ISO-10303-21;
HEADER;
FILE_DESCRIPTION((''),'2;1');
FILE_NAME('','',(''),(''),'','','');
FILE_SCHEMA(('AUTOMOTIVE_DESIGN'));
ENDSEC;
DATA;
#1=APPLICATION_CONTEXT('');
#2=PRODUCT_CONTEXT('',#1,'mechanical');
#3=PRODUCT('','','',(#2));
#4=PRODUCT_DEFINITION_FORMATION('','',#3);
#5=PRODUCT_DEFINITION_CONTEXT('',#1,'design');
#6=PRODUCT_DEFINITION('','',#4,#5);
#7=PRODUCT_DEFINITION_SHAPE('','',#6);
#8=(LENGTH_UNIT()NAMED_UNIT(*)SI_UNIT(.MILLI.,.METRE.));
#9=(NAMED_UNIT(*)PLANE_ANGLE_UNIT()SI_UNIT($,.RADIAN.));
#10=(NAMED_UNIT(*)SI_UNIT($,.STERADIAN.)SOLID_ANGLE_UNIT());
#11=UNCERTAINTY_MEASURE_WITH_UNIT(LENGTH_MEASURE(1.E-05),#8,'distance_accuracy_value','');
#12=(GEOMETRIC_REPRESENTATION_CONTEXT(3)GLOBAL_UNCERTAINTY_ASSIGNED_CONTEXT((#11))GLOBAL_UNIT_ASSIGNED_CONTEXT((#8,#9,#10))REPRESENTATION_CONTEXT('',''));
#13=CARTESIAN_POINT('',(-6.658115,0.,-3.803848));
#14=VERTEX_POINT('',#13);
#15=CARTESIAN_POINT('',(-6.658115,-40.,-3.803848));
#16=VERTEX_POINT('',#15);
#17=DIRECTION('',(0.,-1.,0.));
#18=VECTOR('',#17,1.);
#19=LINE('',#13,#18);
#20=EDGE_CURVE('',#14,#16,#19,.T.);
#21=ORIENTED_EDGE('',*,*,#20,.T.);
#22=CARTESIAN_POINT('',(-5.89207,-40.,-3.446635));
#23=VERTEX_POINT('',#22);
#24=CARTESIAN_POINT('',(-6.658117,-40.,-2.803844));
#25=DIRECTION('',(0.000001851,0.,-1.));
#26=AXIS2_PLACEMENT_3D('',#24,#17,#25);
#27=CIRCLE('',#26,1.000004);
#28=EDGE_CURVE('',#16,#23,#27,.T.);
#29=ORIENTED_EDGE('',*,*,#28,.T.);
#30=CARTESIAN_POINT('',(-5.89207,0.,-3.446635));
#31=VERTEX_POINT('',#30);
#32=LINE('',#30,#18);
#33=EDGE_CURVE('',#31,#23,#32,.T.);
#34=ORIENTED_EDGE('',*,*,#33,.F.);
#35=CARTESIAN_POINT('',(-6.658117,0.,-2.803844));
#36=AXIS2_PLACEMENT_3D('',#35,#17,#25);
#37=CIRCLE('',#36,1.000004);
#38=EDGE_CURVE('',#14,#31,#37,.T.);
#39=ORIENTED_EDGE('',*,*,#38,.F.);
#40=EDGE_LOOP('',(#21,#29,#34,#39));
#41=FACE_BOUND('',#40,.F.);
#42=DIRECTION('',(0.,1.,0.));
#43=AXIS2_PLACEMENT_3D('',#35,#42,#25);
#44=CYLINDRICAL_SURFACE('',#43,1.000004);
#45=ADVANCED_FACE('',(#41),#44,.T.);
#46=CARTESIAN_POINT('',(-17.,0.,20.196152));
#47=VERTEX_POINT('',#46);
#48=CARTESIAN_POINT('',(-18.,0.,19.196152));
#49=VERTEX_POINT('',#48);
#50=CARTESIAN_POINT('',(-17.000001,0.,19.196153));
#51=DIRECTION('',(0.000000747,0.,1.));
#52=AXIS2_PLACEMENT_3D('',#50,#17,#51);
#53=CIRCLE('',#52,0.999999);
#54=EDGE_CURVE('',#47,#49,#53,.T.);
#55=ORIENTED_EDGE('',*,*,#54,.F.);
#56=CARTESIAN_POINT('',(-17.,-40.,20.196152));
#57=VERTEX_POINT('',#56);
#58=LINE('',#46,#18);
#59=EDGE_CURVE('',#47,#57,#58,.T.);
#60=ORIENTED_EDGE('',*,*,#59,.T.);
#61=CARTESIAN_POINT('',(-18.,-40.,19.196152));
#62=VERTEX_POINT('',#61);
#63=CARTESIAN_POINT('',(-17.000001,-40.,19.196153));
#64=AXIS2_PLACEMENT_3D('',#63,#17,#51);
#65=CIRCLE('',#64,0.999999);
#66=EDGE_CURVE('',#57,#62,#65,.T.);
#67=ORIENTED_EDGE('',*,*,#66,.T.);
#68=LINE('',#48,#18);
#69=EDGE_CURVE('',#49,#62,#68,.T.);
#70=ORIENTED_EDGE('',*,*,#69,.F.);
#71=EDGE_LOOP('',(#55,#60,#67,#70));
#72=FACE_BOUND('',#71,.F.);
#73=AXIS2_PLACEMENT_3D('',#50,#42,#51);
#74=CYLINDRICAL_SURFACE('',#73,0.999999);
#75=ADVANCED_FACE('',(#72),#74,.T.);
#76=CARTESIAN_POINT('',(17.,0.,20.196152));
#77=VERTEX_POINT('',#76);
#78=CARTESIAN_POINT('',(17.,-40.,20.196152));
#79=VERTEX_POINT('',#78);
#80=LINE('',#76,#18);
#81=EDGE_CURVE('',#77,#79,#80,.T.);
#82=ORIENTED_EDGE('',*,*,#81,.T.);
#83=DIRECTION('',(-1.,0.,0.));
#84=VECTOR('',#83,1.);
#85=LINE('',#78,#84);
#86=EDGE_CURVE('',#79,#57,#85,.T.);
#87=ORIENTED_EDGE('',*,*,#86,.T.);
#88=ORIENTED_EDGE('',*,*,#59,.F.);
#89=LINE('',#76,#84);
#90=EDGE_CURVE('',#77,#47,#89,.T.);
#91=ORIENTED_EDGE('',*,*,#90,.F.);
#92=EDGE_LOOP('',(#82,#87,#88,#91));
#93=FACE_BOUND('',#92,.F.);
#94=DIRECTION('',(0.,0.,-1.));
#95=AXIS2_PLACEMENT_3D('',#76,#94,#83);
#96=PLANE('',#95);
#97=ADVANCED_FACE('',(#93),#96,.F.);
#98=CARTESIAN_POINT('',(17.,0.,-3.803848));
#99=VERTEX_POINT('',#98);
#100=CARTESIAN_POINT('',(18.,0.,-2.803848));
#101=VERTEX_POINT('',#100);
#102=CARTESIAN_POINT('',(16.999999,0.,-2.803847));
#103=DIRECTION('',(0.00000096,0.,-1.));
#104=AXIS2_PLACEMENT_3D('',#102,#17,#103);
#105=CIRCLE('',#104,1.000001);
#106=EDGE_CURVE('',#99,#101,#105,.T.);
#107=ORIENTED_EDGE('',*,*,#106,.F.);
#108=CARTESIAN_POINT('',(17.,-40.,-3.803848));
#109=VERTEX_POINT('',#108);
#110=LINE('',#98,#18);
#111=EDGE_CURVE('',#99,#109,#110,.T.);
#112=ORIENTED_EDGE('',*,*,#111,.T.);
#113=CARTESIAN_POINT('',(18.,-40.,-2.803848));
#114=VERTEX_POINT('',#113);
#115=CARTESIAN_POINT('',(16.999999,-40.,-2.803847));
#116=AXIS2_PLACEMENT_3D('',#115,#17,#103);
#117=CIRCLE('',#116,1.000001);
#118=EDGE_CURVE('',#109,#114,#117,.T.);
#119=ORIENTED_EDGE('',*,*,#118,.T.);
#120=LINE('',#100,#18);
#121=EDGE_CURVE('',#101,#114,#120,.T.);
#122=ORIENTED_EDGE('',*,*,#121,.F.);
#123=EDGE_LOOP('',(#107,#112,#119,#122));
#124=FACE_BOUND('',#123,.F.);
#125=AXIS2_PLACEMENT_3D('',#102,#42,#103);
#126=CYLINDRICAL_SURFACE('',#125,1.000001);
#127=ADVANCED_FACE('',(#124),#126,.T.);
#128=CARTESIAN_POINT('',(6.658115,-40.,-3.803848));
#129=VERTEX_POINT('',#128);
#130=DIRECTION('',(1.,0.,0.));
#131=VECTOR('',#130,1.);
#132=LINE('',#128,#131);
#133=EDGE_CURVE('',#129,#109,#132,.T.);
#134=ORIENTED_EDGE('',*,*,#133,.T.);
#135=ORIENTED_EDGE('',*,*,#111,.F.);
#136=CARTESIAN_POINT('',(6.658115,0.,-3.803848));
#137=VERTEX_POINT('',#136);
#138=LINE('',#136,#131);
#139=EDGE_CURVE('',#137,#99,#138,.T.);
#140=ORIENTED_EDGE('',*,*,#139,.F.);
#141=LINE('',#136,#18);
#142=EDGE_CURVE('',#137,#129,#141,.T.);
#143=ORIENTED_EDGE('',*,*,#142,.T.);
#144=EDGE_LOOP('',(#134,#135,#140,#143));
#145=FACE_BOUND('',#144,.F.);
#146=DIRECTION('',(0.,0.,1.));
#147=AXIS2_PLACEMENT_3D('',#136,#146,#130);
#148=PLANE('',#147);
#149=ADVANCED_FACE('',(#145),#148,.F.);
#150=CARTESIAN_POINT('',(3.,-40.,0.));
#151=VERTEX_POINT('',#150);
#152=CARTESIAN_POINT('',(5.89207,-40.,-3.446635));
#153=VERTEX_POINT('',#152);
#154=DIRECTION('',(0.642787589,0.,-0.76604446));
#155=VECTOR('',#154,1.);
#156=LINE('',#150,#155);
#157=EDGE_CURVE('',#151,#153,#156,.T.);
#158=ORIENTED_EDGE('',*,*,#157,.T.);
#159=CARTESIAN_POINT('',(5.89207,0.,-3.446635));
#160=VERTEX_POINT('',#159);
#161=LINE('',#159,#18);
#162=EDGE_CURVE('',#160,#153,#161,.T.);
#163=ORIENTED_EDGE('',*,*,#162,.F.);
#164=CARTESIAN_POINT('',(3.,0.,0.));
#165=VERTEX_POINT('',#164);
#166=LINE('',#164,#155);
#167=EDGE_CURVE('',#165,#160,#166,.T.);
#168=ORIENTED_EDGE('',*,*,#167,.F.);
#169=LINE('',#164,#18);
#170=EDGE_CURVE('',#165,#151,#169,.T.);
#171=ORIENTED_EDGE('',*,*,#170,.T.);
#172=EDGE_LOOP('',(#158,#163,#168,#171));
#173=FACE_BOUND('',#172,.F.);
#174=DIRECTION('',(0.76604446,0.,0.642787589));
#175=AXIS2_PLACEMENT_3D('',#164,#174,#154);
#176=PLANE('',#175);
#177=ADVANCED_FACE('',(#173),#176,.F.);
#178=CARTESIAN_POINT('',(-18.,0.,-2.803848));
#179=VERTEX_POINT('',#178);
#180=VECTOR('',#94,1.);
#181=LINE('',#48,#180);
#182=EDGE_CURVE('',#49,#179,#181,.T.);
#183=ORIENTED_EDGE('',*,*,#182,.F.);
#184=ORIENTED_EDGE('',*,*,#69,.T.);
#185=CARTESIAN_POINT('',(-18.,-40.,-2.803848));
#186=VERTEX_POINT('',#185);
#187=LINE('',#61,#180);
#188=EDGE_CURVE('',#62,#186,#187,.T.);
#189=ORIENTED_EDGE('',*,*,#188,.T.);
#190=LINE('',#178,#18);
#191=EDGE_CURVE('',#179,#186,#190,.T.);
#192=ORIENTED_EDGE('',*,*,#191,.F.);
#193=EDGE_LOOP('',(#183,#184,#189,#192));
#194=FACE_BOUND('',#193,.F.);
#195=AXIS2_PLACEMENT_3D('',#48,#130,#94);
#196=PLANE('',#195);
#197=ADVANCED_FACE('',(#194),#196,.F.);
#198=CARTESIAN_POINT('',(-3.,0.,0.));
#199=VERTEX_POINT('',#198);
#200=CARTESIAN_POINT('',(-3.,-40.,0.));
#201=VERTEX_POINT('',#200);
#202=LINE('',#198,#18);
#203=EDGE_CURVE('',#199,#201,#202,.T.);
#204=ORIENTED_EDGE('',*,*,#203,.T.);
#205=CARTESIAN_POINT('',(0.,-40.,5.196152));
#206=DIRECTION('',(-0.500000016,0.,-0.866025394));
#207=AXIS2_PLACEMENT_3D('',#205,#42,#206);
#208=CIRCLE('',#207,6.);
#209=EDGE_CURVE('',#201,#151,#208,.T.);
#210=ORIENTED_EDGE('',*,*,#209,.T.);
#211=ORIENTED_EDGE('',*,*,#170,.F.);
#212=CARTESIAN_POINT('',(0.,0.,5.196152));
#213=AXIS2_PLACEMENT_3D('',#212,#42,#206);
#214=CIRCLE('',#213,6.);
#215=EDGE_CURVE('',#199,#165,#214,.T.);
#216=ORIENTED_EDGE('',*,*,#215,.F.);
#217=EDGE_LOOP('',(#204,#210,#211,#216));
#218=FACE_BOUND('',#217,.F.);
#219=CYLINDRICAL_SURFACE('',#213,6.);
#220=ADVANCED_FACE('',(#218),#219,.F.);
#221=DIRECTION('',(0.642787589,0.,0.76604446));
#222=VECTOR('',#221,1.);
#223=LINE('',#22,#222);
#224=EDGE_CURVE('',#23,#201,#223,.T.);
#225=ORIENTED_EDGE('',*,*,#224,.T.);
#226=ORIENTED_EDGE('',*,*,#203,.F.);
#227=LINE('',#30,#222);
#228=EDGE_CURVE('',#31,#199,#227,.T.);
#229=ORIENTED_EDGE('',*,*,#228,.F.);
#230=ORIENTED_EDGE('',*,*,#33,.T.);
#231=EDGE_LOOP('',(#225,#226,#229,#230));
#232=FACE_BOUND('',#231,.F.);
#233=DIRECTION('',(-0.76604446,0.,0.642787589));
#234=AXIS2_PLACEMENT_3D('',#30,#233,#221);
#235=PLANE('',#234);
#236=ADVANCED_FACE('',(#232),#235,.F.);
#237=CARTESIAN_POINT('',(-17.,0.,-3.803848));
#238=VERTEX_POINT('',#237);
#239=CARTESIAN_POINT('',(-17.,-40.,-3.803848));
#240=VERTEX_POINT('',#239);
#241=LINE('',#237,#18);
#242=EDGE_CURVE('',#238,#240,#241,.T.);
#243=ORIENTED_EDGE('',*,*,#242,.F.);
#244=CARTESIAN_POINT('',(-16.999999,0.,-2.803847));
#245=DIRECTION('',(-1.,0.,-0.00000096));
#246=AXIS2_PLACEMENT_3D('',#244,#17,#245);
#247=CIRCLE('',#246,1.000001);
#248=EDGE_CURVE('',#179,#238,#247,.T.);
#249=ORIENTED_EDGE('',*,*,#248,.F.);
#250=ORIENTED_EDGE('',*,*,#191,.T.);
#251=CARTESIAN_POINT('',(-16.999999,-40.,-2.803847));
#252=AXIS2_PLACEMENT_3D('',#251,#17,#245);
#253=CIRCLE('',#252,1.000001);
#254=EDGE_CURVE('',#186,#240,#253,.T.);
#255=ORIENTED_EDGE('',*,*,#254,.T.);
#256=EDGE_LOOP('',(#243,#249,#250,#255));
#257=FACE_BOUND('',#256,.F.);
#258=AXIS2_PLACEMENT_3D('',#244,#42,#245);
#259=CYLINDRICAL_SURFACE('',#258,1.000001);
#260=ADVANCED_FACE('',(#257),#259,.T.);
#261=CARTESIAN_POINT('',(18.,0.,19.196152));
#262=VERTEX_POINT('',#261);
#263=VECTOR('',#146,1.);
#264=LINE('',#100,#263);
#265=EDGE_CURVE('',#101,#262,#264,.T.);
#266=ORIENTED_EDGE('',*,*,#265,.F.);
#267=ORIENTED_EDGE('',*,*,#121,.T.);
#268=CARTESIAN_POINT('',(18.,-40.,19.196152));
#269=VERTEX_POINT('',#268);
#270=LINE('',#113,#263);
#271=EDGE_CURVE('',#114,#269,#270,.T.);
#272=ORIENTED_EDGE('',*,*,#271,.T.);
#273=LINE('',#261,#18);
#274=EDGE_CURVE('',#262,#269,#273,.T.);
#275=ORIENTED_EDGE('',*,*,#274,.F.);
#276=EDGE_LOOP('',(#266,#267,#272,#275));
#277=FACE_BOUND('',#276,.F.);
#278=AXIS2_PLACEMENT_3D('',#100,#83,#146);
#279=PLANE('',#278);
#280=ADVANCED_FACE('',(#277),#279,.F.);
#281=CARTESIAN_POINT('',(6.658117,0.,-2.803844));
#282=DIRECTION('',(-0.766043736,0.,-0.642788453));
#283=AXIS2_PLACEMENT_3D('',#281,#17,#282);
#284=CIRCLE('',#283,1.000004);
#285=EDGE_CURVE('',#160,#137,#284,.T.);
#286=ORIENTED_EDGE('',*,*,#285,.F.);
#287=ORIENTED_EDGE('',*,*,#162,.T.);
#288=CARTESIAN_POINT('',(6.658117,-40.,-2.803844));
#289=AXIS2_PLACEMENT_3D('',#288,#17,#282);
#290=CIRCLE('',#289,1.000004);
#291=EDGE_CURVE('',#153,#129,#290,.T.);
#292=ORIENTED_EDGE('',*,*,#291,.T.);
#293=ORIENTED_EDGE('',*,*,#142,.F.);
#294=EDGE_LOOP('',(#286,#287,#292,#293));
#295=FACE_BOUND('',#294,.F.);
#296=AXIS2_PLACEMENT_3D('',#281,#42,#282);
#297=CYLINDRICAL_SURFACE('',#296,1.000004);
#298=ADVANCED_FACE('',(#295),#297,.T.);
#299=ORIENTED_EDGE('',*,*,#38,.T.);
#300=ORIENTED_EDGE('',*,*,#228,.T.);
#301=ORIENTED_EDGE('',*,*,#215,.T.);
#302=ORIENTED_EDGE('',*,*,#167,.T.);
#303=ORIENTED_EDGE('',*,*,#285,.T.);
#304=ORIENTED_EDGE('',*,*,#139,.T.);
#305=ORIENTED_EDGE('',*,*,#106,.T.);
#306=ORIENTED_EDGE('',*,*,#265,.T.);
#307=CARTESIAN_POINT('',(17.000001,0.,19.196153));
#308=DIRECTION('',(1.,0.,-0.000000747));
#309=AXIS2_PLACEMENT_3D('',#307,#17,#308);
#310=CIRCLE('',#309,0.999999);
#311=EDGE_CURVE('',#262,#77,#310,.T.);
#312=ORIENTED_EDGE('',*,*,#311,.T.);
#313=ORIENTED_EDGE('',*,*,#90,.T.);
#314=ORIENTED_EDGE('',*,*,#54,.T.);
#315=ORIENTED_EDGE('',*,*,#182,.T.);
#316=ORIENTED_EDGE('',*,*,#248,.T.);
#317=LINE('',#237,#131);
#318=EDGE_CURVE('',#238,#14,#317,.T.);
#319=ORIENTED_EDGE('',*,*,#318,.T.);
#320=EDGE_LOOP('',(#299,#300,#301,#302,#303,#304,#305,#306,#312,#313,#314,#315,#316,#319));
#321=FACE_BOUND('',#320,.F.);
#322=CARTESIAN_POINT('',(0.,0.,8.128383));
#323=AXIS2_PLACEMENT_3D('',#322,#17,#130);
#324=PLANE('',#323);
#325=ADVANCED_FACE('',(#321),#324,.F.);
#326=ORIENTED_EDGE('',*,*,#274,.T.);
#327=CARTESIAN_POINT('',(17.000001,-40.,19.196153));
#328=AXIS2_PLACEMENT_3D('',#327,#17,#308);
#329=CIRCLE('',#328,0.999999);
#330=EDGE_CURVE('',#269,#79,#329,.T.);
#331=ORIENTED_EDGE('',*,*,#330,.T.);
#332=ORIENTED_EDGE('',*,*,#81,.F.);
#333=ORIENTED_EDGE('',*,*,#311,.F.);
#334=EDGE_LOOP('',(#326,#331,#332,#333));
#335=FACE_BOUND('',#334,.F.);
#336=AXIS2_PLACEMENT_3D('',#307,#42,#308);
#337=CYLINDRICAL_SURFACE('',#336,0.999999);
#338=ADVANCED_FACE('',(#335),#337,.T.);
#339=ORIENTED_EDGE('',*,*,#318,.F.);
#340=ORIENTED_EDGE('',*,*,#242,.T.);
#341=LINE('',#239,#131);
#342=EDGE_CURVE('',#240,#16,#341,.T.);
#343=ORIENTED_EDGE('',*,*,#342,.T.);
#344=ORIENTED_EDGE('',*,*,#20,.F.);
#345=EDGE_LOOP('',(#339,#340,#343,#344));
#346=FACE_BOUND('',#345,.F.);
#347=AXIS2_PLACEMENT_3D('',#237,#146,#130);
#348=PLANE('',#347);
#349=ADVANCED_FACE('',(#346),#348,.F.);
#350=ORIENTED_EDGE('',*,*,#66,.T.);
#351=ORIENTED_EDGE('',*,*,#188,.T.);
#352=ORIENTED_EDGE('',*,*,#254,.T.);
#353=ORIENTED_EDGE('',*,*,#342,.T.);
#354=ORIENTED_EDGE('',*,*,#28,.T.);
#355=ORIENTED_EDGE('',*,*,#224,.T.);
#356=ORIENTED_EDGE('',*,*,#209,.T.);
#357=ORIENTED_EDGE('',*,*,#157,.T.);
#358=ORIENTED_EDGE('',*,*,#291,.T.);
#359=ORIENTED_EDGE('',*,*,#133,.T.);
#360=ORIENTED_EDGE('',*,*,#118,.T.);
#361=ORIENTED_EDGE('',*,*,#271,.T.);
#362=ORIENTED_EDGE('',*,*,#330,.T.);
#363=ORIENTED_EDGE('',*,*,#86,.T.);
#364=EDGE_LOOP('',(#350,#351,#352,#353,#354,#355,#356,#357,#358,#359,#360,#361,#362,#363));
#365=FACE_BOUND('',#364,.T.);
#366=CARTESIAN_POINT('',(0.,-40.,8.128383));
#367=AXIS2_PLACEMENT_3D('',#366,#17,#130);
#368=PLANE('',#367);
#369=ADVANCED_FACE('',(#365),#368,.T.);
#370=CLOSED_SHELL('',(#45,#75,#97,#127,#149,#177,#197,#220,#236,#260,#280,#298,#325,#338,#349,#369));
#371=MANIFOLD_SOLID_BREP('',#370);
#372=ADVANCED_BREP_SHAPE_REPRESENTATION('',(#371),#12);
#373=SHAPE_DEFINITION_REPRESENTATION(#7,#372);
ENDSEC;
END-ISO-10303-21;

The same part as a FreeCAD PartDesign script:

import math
import FreeCAD as App
import Part
import Sketcher
Q = App.Units.Quantity

doc = App.newDocument("Part")
body = doc.addObject("PartDesign::Body", "Body")

# Sketch on XZ plane
sketch1 = doc.addObject("Sketcher::SketchObject", "Sketch")
body.addObject(sketch1)
sketch1.AttachmentSupport = (doc.XZ_Plane, [""])
sketch1.MapMode = "FlatFace"
sketch1.addGeometry([
    Part.ArcOfCircle(Part.Circle(App.Vector(-17, -2.8, 0), App.Vector(0, 0, 1), 1), math.radians(-180), math.radians(-90)),  # 0
    Part.LineSegment(App.Vector(-17, -3.8, 0), App.Vector(-6.7, -3.8, 0)),  # 1
    Part.ArcOfCircle(Part.Circle(App.Vector(-6.7, -2.8, 0), App.Vector(0, 0, 1), 1), math.radians(-90), math.radians(-40)),  # 2
    Part.LineSegment(App.Vector(-5.9, -3.4, 0), App.Vector(-3, 0, 0)),  # 3
    Part.ArcOfCircle(Part.Circle(App.Vector(0, 5.2, 0), App.Vector(0, 0, 1), 6), math.radians(-60), math.radians(240)),  # 4
    Part.LineSegment(App.Vector(3, 0, 0), App.Vector(5.9, -3.4, 0)),  # 5
    Part.ArcOfCircle(Part.Circle(App.Vector(6.7, -2.8, 0), App.Vector(0, 0, 1), 1), math.radians(-140), math.radians(-90)),  # 6
    Part.LineSegment(App.Vector(6.7, -3.8, 0), App.Vector(17, -3.8, 0)),  # 7
    Part.ArcOfCircle(Part.Circle(App.Vector(17, -2.8, 0), App.Vector(0, 0, 1), 1), math.radians(-90), math.radians(0)),  # 8
    Part.LineSegment(App.Vector(18, -2.8, 0), App.Vector(18, 19.2, 0)),  # 9
    Part.ArcOfCircle(Part.Circle(App.Vector(17, 19.2, 0), App.Vector(0, 0, 1), 1), math.radians(0), math.radians(90)),  # 10
    Part.LineSegment(App.Vector(17, 20.2, 0), App.Vector(-17, 20.2, 0)),  # 11
    Part.ArcOfCircle(Part.Circle(App.Vector(-17, 19.2, 0), App.Vector(0, 0, 1), 1), math.radians(90), math.radians(180)),  # 12
    Part.LineSegment(App.Vector(-18, 19.2, 0), App.Vector(-18, -2.8, 0)),  # 13
], False)
sketch1.addConstraint([
    Sketcher.Constraint("Tangent", 0, 2, 1, 1),
    Sketcher.Constraint("Tangent", 1, 2, 2, 1),
    Sketcher.Constraint("Tangent", 2, 2, 3, 1),
    Sketcher.Constraint("Coincident", 3, 2, 4, 2),
    Sketcher.Constraint("Coincident", 4, 1, 5, 1),
    Sketcher.Constraint("Tangent", 5, 2, 6, 1),
    Sketcher.Constraint("Tangent", 6, 2, 7, 1),
    Sketcher.Constraint("Tangent", 7, 2, 8, 1),
    Sketcher.Constraint("Tangent", 8, 2, 9, 1),
    Sketcher.Constraint("Tangent", 9, 2, 10, 1),
    Sketcher.Constraint("Tangent", 10, 2, 11, 1),
    Sketcher.Constraint("Tangent", 11, 2, 12, 1),
    Sketcher.Constraint("Tangent", 12, 2, 13, 1),
    Sketcher.Constraint("Tangent", 13, 2, 0, 1),
    Sketcher.Constraint("Horizontal", 1),
    Sketcher.Constraint("Horizontal", 7),
    Sketcher.Constraint("Vertical", 9),
    Sketcher.Constraint("Horizontal", 11),
    Sketcher.Constraint("Vertical", 13),
    Sketcher.Constraint("Equal", 2, 6),
    Sketcher.Constraint("Equal", 0, 8),
    Sketcher.Constraint("Equal", 8, 10),
    Sketcher.Constraint("Equal", 10, 12),
    Sketcher.Constraint("Symmetric", 3, 2, 4, 1, -1, 1),
    Sketcher.Constraint("Symmetric", 2, 3, 6, 3, -2),
    Sketcher.Constraint("PointOnObject", 4, 3, -2),
    Sketcher.Constraint("Equal", 1, 7),
    Sketcher.Constraint("Radius", 0, 1.000001),
    Sketcher.Constraint("Radius", 4, 6.0),
    Sketcher.Constraint("DistanceX", 11, 2, 11, 1, 34.0),
    Sketcher.Constraint("DistanceY", 9, 1, 9, 2, 22.0),
    Sketcher.Constraint("Angle", 3, Q("50.000002 deg")),
    Sketcher.Constraint("DistanceX", 3, 2, -1, 1, 3.0),
    Sketcher.Constraint("DistanceY", 0, 3, 4, 3, 7.999999),
    Sketcher.Constraint("Radius", 2, 1.000004),
])
pad1 = doc.addObject("PartDesign::Pad", "Pad")
body.addObject(pad1)
pad1.Profile = sketch1
pad1.Length = 40

doc.recompute()
